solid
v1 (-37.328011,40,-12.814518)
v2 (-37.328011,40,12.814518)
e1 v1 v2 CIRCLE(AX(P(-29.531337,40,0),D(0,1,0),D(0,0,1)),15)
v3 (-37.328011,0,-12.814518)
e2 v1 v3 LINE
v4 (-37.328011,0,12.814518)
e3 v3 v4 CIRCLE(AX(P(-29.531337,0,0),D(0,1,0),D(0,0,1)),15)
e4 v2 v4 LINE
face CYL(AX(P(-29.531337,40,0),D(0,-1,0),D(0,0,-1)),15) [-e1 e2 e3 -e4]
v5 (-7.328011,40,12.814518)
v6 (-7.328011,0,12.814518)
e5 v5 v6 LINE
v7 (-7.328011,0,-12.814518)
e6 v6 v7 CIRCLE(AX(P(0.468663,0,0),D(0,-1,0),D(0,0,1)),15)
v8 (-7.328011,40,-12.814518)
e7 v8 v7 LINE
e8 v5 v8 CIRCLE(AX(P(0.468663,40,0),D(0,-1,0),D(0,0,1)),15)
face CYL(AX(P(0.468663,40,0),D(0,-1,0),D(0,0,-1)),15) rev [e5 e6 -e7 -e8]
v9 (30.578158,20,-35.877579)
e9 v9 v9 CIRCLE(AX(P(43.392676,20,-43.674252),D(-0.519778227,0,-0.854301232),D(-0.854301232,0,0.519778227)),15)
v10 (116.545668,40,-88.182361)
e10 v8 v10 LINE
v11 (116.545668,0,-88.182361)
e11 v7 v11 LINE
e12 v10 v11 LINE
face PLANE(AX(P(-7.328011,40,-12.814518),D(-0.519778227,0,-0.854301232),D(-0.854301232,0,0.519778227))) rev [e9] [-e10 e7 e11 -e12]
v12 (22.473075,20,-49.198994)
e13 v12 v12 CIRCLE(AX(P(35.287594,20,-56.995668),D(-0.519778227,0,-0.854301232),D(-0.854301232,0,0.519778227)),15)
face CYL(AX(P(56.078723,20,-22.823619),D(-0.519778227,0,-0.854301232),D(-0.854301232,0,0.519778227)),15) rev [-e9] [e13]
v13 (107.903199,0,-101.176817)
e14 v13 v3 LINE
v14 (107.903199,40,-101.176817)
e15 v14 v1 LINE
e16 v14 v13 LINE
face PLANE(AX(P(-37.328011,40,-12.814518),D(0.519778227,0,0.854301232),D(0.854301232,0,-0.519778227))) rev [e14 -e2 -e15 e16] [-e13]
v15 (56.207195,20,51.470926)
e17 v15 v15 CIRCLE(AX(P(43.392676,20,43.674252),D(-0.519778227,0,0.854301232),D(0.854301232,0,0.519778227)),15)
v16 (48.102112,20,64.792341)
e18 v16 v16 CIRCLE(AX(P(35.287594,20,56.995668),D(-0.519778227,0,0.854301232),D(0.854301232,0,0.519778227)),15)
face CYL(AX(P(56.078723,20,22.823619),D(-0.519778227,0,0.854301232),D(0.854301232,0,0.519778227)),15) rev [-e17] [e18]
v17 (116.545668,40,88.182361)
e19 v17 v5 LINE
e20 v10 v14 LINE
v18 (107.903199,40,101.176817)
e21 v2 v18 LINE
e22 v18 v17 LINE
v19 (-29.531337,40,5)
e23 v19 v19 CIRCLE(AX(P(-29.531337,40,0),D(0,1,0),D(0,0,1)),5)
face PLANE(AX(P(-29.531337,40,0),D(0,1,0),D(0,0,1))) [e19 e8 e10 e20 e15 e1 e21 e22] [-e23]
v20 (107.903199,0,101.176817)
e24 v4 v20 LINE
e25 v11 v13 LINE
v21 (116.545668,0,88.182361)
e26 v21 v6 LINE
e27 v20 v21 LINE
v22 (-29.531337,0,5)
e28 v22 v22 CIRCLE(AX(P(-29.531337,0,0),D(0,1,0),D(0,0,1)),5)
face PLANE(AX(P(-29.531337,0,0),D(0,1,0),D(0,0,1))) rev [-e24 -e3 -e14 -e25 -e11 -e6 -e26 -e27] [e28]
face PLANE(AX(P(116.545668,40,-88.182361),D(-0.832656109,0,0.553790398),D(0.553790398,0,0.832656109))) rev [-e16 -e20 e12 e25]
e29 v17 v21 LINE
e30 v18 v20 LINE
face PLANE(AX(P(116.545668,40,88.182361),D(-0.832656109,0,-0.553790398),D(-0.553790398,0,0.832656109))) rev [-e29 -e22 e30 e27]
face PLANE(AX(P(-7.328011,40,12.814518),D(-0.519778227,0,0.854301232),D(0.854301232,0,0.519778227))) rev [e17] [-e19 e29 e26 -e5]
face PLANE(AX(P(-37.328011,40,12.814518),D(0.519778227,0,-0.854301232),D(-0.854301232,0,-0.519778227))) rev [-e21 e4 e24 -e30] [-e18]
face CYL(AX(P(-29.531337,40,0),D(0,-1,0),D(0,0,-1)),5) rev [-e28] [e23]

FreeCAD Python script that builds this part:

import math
import FreeCAD as App
import Part
import Sketcher

V = App.Vector
Q = App.Units.Quantity

doc = App.newDocument("Part")
params = doc.addObject("Spreadsheet::Sheet", "Params")
for row, (alias, value) in enumerate([
    ("sketch1_diameter", "10 mm"),
    ("sketch1_radius", "15 mm"),
    ("sketch1_length", "170 mm"),
    ("sketch1_length2", "145 mm"),
    ("pad1_length", "40 mm"),
    ("sketch2_diameter", "30 mm"),
    ("pocket1_length", "40 mm"),
    ("sketch3_diameter", "30 mm"),
    ("pocket2_length", "40 mm"),
], start=1):
    params.set(f"A{row}", alias)
    params.set(f"B{row}", "=" + value)
    params.setAlias(f"B{row}", alias)

body = doc.addObject("PartDesign::Body", "Body")

sketch1 = doc.addObject("Sketcher::SketchObject", "Sketch")
body.addObject(sketch1)
sketch1.AttachmentSupport = (doc.XZ_Plane, [""])
sketch1.MapMode = "FlatFace"
sketch1.addGeometry([
    Part.LineSegment(V(108, -101, 0), V(-37, -13, 0)),
    Part.ArcOfCircle(Part.Circle(V(-30, 0, 0), V(0, 0, 1), 15), math.radians(121), math.radians(239)),
    Part.LineSegment(V(-37, 13, 0), V(108, 101, 0)),
    Part.LineSegment(V(108, 101, 0), V(117, 88, 0)),
    Part.LineSegment(V(117, 88, 0), V(-7, 13, 0)),
    Part.ArcOfCircle(Part.Circle(V(0, 0, 0), V(0, 0, 1), 15), math.radians(121), math.radians(239)),
    Part.LineSegment(V(-7, -13, 0), V(117, -88, 0)),
    Part.LineSegment(V(117, -88, 0), V(108, -101, 0)),
    Part.Circle(V(-30, 0, 0), V(0, 0, 1), 5),
], False)
sketch1.addConstraint([
    Sketcher.Constraint("Tangent", 0, 2, 1, 2),
    Sketcher.Constraint("Tangent", 1, 1, 2, 1),
    Sketcher.Constraint("Coincident", 2, 2, 3, 1),
    Sketcher.Constraint("Coincident", 3, 2, 4, 1),
    Sketcher.Constraint("Tangent", 4, 2, 5, 1),
    Sketcher.Constraint("Tangent", 5, 2, 6, 1),
    Sketcher.Constraint("Coincident", 6, 2, 7, 1),
    Sketcher.Constraint("Coincident", 7, 2, 0, 1),
    Sketcher.Constraint("Coincident", 8, 3, 1, 3),
    Sketcher.Constraint("Equal", 1, 5),
    Sketcher.Constraint("Symmetric", 0, 2, 1, 1, -1),
    Sketcher.Constraint("Symmetric", 4, 2, 5, 2, -1),
    Sketcher.Constraint("Parallel", 2, 4),
    Sketcher.Constraint("Vertical", 3, 2, 6, 2),
    Sketcher.Constraint("Vertical", 2, 2, 7, 2),
    Sketcher.Constraint("Diameter", 8, Q("10 mm")),
    Sketcher.Constraint("Radius", 1, Q("15 mm")),
    Sketcher.Constraint("Distance", 0, Q("170 mm")),
    Sketcher.Constraint("Distance", 4, Q("145 mm")),
    Sketcher.Constraint("DistanceX", 1, 3, 5, 3, Q("30 mm")),
    Sketcher.Constraint("DistanceX", -1, 1, 2, 2, Q("107.903199 mm")),
    Sketcher.Constraint("DistanceY", 1, 1, 2, 2, Q("88.362299 mm")),
])
sketch1.setExpression("Constraints[15]", "Params.sketch1_diameter")
sketch1.setExpression("Constraints[16]", "Params.sketch1_radius")
sketch1.setExpression("Constraints[17]", "Params.sketch1_length")
sketch1.setExpression("Constraints[18]", "Params.sketch1_length2")
pad1 = doc.addObject("PartDesign::Pad", "Pad")
body.addObject(pad1)
pad1.Profile = sketch1
pad1.setExpression("Length", "Params.pad1_length")
pad1.Reversed = True

sketch2 = doc.addObject("Sketcher::SketchObject", "Sketch001")
body.addObject(sketch2)
sketch2.Placement = App.Placement(V(-15.775137, 0, 25.927826), App.Rotation(V(0.854301232, 0, 0.519778227), V(0, 1, 0), V(-0.519778227, 0, 0.854301232), "ZXY"))
sketch2.addGeometry(Part.Circle(V(60, 20, 0), V(0, 0, 1), 15), False)
sketch2.addConstraint([
    Sketcher.Constraint("Diameter", 0, Q("30 mm")),
    Sketcher.Constraint("DistanceY", -1, 1, 0, 3, Q("20 mm")),
    Sketcher.Constraint("DistanceX", -1, 1, 0, 3, Q("59.771342 mm")),
])
sketch2.setExpression("Constraints[0]", "Params.sketch2_diameter")
pocket1 = doc.addObject("PartDesign::Pocket", "Pocket")
body.addObject(pocket1)
pocket1.Profile = sketch2
pocket1.setExpression("Length", "Params.pocket1_length")

sketch3 = doc.addObject("Sketcher::SketchObject", "Sketch002")
body.addObject(sketch3)
sketch3.Placement = App.Placement(V(-15.775137, 0, -25.927826), App.Rotation(V(-0.854301232, 0, 0.519778227), V(0, 1, 0), V(-0.519778227, 0, -0.854301232), "ZXY"))
sketch3.addGeometry(Part.Circle(V(-60, 20, 0), V(0, 0, 1), 15), False)
sketch3.addConstraint([
    Sketcher.Constraint("Diameter", 0, Q("30 mm")),
    Sketcher.Constraint("DistanceY", -1, 1, 0, 3, Q("20 mm")),
    Sketcher.Constraint("DistanceX", 0, 3, -1, 1, Q("59.771342 mm")),
])
sketch3.setExpression("Constraints[0]", "Params.sketch3_diameter")
pocket2 = doc.addObject("PartDesign::Pocket", "Pocket001")
body.addObject(pocket2)
pocket2.Profile = sketch3
pocket2.setExpression("Length", "Params.pocket2_length")

doc.recompute()
